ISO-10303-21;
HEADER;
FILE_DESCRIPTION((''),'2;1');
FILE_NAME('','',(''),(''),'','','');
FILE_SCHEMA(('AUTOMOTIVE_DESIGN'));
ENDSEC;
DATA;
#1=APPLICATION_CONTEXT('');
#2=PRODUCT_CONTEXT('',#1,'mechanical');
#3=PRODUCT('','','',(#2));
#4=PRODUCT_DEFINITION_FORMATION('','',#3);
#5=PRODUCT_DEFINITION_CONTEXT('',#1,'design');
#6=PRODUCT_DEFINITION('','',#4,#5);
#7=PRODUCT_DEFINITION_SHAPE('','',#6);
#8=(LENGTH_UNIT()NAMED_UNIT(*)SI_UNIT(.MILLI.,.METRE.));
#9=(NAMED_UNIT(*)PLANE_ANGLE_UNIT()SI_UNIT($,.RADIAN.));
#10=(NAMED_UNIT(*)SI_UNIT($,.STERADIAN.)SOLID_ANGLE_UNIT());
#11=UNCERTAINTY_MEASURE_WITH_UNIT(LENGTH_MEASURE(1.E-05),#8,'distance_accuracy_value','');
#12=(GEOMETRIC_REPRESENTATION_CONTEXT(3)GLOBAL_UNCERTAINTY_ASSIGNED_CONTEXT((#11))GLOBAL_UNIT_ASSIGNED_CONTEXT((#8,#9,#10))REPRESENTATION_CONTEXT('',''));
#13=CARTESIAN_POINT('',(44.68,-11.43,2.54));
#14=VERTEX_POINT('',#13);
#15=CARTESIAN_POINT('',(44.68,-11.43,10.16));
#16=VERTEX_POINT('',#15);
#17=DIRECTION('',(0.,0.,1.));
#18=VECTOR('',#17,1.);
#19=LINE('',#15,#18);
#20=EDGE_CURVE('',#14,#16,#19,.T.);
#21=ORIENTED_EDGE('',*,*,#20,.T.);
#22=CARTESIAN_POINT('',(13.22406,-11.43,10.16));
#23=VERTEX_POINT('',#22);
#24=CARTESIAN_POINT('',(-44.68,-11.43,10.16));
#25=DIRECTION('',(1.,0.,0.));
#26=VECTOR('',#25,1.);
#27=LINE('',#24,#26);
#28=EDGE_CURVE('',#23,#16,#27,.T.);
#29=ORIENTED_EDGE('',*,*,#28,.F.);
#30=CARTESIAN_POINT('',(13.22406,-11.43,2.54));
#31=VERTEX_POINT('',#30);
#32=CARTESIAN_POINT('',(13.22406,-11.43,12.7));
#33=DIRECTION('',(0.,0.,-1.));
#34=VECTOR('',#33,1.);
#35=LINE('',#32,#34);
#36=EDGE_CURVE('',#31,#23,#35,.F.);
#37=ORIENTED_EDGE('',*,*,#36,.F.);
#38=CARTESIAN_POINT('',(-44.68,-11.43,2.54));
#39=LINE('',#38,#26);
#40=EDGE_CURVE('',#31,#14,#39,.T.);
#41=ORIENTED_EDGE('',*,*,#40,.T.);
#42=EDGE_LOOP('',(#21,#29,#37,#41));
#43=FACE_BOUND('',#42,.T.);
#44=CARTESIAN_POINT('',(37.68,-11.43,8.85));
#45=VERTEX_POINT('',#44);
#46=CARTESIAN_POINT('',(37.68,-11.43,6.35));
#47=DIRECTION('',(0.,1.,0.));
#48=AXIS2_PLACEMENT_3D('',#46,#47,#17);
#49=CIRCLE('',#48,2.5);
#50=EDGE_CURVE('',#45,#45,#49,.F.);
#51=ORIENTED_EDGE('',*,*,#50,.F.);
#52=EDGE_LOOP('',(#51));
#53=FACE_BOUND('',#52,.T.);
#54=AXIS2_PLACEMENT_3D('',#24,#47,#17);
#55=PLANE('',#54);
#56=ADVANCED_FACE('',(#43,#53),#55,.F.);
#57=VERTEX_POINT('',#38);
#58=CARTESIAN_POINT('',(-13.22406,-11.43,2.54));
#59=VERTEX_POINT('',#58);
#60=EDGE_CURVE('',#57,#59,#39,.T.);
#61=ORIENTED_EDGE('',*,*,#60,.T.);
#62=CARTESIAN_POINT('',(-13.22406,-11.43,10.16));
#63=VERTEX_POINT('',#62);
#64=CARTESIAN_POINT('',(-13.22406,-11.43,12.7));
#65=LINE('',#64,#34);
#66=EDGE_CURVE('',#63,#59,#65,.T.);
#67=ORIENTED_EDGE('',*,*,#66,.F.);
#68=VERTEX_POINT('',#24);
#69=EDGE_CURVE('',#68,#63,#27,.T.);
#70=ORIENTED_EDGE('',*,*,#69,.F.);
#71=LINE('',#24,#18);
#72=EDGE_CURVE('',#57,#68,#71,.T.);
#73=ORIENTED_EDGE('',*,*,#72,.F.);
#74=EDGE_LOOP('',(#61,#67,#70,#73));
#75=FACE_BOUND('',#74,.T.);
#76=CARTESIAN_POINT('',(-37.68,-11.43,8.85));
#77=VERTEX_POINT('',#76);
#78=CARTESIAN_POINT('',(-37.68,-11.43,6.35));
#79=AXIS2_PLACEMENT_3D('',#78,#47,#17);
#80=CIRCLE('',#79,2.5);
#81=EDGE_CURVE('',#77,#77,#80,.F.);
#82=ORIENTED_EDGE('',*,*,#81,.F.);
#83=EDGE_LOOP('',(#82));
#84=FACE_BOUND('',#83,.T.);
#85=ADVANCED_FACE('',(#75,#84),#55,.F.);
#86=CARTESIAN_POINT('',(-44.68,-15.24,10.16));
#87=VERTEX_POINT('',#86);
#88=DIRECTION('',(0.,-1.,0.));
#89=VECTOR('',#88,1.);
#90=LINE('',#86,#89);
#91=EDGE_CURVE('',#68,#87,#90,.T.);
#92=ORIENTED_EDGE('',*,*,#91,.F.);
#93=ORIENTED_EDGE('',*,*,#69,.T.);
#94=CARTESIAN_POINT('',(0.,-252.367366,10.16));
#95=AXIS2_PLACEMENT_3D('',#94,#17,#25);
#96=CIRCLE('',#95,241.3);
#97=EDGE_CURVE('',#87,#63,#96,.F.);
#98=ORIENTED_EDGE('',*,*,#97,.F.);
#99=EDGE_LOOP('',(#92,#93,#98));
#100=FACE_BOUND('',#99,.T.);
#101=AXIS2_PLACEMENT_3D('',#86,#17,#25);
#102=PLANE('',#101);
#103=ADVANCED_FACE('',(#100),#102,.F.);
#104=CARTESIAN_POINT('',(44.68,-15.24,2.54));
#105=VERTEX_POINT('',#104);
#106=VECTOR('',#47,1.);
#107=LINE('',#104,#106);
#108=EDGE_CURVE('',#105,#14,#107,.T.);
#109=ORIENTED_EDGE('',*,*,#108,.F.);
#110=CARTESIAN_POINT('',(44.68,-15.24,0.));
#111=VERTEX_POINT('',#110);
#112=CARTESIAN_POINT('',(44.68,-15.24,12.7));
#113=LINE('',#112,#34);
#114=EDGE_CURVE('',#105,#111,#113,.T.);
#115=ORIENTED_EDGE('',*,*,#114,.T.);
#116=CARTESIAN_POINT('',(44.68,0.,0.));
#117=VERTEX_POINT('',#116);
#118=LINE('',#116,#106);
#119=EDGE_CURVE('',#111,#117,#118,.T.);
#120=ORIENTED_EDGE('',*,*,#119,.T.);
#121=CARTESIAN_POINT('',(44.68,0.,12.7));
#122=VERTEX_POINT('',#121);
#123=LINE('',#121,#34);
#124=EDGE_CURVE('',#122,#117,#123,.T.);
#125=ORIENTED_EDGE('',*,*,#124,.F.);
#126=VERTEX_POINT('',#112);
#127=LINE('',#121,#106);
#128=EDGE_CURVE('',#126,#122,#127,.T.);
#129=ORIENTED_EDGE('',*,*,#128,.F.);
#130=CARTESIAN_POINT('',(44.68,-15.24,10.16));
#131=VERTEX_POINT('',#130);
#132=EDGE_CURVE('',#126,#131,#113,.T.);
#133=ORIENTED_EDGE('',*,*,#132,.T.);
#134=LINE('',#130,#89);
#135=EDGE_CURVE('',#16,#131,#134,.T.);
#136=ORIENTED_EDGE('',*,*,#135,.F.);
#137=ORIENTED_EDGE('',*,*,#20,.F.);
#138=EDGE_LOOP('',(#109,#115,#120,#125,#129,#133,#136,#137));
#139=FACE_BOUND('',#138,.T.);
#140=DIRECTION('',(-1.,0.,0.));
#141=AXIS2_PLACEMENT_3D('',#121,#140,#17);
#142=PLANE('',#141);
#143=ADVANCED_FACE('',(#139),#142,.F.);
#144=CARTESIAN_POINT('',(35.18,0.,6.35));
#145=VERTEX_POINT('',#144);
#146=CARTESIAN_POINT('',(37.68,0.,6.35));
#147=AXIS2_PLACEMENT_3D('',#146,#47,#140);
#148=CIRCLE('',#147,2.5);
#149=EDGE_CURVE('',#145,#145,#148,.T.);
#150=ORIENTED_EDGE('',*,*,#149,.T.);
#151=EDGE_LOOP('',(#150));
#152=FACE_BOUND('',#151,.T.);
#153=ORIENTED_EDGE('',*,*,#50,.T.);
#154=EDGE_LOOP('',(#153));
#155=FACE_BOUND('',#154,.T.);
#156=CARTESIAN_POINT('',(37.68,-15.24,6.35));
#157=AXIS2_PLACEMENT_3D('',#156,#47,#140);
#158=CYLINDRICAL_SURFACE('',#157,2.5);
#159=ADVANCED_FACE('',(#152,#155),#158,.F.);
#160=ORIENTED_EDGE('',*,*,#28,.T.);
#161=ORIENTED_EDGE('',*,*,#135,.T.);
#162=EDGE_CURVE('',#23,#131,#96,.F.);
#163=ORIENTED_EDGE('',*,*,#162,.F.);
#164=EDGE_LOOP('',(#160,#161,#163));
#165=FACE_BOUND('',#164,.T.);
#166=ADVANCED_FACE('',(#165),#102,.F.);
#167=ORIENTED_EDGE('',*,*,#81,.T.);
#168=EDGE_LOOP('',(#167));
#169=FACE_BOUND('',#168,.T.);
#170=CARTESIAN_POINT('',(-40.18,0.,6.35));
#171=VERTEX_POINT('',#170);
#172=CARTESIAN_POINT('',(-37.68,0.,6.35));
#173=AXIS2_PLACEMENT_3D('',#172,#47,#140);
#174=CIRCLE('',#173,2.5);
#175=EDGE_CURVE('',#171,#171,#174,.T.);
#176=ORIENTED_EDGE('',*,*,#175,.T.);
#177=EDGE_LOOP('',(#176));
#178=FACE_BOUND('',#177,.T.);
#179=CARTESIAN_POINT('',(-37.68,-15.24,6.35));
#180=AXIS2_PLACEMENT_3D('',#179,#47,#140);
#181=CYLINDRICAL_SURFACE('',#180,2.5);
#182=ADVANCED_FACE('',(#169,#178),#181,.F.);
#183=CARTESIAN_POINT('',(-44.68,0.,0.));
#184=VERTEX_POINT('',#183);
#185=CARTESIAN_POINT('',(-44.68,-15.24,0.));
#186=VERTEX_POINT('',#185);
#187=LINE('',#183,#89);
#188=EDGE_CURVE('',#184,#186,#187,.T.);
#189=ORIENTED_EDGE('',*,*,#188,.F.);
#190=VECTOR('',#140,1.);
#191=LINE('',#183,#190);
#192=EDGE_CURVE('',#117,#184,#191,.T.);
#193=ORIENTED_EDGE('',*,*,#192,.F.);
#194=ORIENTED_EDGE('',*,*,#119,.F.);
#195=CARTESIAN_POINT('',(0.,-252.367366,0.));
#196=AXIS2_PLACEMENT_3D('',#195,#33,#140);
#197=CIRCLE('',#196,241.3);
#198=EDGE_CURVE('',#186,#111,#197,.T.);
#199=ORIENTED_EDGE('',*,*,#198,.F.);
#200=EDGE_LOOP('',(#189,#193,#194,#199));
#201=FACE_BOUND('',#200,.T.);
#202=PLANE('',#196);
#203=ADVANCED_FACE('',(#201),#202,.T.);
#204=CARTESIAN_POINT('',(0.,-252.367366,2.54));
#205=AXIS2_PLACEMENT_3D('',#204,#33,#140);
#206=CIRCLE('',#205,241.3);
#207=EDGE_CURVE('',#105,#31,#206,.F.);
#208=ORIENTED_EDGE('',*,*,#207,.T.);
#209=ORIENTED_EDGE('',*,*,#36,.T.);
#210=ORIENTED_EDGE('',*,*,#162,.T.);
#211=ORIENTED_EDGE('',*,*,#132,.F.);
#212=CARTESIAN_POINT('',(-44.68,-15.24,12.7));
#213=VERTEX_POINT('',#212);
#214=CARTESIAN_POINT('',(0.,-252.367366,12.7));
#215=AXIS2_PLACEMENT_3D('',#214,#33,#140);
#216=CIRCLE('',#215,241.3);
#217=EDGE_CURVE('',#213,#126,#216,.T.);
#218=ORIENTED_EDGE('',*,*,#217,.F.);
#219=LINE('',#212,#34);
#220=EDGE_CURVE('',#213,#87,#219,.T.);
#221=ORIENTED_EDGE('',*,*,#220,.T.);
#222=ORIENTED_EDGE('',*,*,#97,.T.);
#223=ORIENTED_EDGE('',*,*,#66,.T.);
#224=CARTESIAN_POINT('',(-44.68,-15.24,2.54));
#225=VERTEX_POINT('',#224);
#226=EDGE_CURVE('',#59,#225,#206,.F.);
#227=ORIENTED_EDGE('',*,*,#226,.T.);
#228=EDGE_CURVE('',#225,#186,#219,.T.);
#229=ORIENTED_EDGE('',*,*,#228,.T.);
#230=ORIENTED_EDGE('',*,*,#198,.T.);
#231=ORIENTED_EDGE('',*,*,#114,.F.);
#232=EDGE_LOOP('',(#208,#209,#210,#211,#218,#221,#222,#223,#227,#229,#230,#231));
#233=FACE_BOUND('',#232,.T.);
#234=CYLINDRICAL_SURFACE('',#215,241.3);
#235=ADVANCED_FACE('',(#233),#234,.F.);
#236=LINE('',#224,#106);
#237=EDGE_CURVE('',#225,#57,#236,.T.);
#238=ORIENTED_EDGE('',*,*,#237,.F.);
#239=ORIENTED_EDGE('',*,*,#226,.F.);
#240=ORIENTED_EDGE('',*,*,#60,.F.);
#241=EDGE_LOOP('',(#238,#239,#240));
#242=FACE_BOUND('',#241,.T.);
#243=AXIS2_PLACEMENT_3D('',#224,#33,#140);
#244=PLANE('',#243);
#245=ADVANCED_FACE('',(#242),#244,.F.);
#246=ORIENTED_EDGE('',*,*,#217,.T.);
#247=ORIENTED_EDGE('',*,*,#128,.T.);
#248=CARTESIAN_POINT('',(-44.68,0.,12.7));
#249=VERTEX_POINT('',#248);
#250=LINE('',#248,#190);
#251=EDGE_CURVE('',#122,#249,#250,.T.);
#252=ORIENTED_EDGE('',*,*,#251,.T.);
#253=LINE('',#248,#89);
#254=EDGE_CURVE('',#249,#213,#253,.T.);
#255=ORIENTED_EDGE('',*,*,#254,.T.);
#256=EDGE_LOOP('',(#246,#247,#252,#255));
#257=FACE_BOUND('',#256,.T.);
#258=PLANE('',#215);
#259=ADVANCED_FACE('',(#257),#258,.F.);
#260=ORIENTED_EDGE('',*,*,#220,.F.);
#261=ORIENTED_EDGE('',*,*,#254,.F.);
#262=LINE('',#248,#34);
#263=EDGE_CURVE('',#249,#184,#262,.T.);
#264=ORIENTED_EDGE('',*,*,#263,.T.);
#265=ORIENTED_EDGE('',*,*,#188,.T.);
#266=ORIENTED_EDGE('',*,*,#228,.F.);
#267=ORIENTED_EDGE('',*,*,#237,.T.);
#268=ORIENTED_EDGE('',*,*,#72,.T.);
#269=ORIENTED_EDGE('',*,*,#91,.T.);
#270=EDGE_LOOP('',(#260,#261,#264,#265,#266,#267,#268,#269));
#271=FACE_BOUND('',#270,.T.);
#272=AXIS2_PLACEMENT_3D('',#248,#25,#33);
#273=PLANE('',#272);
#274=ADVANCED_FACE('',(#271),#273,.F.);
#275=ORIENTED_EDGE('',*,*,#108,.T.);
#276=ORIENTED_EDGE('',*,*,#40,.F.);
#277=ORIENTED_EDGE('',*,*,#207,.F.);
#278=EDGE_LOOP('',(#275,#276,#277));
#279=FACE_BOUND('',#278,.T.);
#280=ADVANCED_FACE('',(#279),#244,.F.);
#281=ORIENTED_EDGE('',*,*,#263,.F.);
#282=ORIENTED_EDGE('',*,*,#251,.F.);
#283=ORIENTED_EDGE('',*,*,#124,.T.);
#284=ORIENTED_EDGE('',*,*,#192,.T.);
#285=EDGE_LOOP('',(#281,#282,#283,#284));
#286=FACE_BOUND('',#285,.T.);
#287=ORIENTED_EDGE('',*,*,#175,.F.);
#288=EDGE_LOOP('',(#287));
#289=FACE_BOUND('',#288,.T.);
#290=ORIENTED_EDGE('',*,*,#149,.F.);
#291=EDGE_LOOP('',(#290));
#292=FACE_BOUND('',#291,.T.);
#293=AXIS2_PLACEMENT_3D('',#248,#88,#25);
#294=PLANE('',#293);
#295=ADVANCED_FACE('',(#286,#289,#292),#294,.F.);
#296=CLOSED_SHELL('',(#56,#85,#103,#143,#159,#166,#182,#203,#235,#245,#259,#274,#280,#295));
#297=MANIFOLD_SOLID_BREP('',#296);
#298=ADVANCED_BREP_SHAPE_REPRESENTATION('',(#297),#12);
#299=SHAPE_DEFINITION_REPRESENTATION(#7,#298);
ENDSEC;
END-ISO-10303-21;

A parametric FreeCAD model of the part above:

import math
import FreeCAD as App
import Part
import Sketcher
Q = App.Units.Quantity


def add_polygon(sketch, points):
    """Adds a closed chain of lines whose ends are joined by coincident constraints."""
    first, n = sketch.GeometryCount, len(points)
    for a, b in zip(points, points[1:] + points[:1]):
        sketch.addGeometry(Part.LineSegment(App.Vector(*a, 0), App.Vector(*b, 0)), False)
    for i in range(n):
        sketch.addConstraint(Sketcher.Constraint("Coincident", first + i, 2, first + (i + 1) % n, 1))

doc = App.newDocument("Part")
body = doc.addObject("PartDesign::Body", "Body")

# Sketch on XY plane
sketch1 = body.newObject("Sketcher::SketchObject", "Sketch")
sketch1.AttachmentSupport = (doc.getObject("XY_Plane"), [""])
sketch1.MapMode = "FlatFace"
sketch1.addGeometry([
    Part.LineSegment(App.Vector(44.68, 0, 0), App.Vector(-44.68, 0, 0)),
    Part.LineSegment(App.Vector(-44.68, 0, 0), App.Vector(-44.68, -15.24, 0)),
    Part.ArcOfCircle(Part.Circle(App.Vector(0, -252.367366, 0), App.Vector(0, 0, 1), 241.3), math.radians(79.329324), math.radians(100.670676)),
    Part.LineSegment(App.Vector(44.68, -15.24, 0), App.Vector(44.68, 0, 0)),
], False)
sketch1.addConstraint([
    Sketcher.Constraint("Coincident", 0, 2, 1, 1),
    Sketcher.Constraint("Coincident", 1, 2, 2, 2),
    Sketcher.Constraint("Coincident", 2, 1, 3, 1),
    Sketcher.Constraint("Coincident", 3, 2, 0, 1),
    Sketcher.Constraint("Horizontal", 0),
    Sketcher.Constraint("Vertical", 1),
    Sketcher.Constraint("Vertical", 3),
    Sketcher.Constraint("Symmetric", 0, 2, 3, 2, -1, 1),
    Sketcher.Constraint("PointOnObject", 2, 3, -2),
    Sketcher.Constraint("Radius", 2, Q("9.5 in")),
    Sketcher.Constraint("DistanceY", 1, 2, 1, 1, Q("0.6 in")),
    Sketcher.Constraint("DistanceX", 0, 2, 0, 1, Q("89.36 mm")),
])
pad1 = body.newObject("PartDesign::Pad", "Pad")
pad1.Profile = sketch1
pad1.Length = Q("0.5 in")

# Sketch on XZ plane
sketch2 = body.newObject("Sketcher::SketchObject", "Sketch001")
sketch2.AttachmentSupport = (doc.getObject("XZ_Plane"), [""])
sketch2.MapMode = "FlatFace"
sketch2.addGeometry([
    Part.Circle(App.Vector(-37.68, 6.35, 0), App.Vector(0, 0, 1), 2.5),
    Part.Circle(App.Vector(37.68, 6.35, 0), App.Vector(0, 0, 1), 2.5),
], False)
sketch2.addConstraint([
    Sketcher.Constraint("Equal", 0, 1),
    Sketcher.Constraint("Symmetric", 0, 3, 1, 3, -2),
    Sketcher.Constraint("Diameter", 0, Q("5 mm")),
    Sketcher.Constraint("DistanceY", -1, 1, 0, 3, Q("0.25 in")),
    Sketcher.Constraint("DistanceX", 0, 3, -1, 1, Q("37.68 mm")),
])
pocket1 = body.newObject("PartDesign::Pocket", "Pocket")
pocket1.Profile = sketch2
pocket1.Type = "ThroughAll"
pocket1.Reversed = True

# Sketch on YZ plane
sketch3 = body.newObject("Sketcher::SketchObject", "Sketch002")
sketch3.AttachmentSupport = (doc.getObject("YZ_Plane"), [""])
sketch3.MapMode = "FlatFace"
sketch3.AttachmentOffset = App.Placement(App.Vector(0, 0, 44.68), App.Rotation())
add_polygon(sketch3, [(-11.43, 10.16), (-15.24, 10.16), (-15.24, 2.54), (-11.43, 2.54)])  # lines 0-3
sketch3.addConstraint([
    Sketcher.Constraint("Horizontal", 0),
    Sketcher.Constraint("Vertical", 1),
    Sketcher.Constraint("Horizontal", 2),
    Sketcher.Constraint("Vertical", 3),
    Sketcher.Constraint("DistanceY", 1, 2, 1, 1, Q("0.3 in")),
    Sketcher.Constraint("DistanceX", 0, 2, 0, 1, Q("0.15 in")),
    Sketcher.Constraint("DistanceX", 0, 2, -1, 1, Q("0.6 in")),
    Sketcher.Constraint("DistanceY", -1, 1, 0, 2, Q("0.4 in")),
])
pocket2 = body.newObject("PartDesign::Pocket", "Pocket001")
pocket2.Profile = sketch3
pocket2.Type = "ThroughAll"

doc.recompute()
